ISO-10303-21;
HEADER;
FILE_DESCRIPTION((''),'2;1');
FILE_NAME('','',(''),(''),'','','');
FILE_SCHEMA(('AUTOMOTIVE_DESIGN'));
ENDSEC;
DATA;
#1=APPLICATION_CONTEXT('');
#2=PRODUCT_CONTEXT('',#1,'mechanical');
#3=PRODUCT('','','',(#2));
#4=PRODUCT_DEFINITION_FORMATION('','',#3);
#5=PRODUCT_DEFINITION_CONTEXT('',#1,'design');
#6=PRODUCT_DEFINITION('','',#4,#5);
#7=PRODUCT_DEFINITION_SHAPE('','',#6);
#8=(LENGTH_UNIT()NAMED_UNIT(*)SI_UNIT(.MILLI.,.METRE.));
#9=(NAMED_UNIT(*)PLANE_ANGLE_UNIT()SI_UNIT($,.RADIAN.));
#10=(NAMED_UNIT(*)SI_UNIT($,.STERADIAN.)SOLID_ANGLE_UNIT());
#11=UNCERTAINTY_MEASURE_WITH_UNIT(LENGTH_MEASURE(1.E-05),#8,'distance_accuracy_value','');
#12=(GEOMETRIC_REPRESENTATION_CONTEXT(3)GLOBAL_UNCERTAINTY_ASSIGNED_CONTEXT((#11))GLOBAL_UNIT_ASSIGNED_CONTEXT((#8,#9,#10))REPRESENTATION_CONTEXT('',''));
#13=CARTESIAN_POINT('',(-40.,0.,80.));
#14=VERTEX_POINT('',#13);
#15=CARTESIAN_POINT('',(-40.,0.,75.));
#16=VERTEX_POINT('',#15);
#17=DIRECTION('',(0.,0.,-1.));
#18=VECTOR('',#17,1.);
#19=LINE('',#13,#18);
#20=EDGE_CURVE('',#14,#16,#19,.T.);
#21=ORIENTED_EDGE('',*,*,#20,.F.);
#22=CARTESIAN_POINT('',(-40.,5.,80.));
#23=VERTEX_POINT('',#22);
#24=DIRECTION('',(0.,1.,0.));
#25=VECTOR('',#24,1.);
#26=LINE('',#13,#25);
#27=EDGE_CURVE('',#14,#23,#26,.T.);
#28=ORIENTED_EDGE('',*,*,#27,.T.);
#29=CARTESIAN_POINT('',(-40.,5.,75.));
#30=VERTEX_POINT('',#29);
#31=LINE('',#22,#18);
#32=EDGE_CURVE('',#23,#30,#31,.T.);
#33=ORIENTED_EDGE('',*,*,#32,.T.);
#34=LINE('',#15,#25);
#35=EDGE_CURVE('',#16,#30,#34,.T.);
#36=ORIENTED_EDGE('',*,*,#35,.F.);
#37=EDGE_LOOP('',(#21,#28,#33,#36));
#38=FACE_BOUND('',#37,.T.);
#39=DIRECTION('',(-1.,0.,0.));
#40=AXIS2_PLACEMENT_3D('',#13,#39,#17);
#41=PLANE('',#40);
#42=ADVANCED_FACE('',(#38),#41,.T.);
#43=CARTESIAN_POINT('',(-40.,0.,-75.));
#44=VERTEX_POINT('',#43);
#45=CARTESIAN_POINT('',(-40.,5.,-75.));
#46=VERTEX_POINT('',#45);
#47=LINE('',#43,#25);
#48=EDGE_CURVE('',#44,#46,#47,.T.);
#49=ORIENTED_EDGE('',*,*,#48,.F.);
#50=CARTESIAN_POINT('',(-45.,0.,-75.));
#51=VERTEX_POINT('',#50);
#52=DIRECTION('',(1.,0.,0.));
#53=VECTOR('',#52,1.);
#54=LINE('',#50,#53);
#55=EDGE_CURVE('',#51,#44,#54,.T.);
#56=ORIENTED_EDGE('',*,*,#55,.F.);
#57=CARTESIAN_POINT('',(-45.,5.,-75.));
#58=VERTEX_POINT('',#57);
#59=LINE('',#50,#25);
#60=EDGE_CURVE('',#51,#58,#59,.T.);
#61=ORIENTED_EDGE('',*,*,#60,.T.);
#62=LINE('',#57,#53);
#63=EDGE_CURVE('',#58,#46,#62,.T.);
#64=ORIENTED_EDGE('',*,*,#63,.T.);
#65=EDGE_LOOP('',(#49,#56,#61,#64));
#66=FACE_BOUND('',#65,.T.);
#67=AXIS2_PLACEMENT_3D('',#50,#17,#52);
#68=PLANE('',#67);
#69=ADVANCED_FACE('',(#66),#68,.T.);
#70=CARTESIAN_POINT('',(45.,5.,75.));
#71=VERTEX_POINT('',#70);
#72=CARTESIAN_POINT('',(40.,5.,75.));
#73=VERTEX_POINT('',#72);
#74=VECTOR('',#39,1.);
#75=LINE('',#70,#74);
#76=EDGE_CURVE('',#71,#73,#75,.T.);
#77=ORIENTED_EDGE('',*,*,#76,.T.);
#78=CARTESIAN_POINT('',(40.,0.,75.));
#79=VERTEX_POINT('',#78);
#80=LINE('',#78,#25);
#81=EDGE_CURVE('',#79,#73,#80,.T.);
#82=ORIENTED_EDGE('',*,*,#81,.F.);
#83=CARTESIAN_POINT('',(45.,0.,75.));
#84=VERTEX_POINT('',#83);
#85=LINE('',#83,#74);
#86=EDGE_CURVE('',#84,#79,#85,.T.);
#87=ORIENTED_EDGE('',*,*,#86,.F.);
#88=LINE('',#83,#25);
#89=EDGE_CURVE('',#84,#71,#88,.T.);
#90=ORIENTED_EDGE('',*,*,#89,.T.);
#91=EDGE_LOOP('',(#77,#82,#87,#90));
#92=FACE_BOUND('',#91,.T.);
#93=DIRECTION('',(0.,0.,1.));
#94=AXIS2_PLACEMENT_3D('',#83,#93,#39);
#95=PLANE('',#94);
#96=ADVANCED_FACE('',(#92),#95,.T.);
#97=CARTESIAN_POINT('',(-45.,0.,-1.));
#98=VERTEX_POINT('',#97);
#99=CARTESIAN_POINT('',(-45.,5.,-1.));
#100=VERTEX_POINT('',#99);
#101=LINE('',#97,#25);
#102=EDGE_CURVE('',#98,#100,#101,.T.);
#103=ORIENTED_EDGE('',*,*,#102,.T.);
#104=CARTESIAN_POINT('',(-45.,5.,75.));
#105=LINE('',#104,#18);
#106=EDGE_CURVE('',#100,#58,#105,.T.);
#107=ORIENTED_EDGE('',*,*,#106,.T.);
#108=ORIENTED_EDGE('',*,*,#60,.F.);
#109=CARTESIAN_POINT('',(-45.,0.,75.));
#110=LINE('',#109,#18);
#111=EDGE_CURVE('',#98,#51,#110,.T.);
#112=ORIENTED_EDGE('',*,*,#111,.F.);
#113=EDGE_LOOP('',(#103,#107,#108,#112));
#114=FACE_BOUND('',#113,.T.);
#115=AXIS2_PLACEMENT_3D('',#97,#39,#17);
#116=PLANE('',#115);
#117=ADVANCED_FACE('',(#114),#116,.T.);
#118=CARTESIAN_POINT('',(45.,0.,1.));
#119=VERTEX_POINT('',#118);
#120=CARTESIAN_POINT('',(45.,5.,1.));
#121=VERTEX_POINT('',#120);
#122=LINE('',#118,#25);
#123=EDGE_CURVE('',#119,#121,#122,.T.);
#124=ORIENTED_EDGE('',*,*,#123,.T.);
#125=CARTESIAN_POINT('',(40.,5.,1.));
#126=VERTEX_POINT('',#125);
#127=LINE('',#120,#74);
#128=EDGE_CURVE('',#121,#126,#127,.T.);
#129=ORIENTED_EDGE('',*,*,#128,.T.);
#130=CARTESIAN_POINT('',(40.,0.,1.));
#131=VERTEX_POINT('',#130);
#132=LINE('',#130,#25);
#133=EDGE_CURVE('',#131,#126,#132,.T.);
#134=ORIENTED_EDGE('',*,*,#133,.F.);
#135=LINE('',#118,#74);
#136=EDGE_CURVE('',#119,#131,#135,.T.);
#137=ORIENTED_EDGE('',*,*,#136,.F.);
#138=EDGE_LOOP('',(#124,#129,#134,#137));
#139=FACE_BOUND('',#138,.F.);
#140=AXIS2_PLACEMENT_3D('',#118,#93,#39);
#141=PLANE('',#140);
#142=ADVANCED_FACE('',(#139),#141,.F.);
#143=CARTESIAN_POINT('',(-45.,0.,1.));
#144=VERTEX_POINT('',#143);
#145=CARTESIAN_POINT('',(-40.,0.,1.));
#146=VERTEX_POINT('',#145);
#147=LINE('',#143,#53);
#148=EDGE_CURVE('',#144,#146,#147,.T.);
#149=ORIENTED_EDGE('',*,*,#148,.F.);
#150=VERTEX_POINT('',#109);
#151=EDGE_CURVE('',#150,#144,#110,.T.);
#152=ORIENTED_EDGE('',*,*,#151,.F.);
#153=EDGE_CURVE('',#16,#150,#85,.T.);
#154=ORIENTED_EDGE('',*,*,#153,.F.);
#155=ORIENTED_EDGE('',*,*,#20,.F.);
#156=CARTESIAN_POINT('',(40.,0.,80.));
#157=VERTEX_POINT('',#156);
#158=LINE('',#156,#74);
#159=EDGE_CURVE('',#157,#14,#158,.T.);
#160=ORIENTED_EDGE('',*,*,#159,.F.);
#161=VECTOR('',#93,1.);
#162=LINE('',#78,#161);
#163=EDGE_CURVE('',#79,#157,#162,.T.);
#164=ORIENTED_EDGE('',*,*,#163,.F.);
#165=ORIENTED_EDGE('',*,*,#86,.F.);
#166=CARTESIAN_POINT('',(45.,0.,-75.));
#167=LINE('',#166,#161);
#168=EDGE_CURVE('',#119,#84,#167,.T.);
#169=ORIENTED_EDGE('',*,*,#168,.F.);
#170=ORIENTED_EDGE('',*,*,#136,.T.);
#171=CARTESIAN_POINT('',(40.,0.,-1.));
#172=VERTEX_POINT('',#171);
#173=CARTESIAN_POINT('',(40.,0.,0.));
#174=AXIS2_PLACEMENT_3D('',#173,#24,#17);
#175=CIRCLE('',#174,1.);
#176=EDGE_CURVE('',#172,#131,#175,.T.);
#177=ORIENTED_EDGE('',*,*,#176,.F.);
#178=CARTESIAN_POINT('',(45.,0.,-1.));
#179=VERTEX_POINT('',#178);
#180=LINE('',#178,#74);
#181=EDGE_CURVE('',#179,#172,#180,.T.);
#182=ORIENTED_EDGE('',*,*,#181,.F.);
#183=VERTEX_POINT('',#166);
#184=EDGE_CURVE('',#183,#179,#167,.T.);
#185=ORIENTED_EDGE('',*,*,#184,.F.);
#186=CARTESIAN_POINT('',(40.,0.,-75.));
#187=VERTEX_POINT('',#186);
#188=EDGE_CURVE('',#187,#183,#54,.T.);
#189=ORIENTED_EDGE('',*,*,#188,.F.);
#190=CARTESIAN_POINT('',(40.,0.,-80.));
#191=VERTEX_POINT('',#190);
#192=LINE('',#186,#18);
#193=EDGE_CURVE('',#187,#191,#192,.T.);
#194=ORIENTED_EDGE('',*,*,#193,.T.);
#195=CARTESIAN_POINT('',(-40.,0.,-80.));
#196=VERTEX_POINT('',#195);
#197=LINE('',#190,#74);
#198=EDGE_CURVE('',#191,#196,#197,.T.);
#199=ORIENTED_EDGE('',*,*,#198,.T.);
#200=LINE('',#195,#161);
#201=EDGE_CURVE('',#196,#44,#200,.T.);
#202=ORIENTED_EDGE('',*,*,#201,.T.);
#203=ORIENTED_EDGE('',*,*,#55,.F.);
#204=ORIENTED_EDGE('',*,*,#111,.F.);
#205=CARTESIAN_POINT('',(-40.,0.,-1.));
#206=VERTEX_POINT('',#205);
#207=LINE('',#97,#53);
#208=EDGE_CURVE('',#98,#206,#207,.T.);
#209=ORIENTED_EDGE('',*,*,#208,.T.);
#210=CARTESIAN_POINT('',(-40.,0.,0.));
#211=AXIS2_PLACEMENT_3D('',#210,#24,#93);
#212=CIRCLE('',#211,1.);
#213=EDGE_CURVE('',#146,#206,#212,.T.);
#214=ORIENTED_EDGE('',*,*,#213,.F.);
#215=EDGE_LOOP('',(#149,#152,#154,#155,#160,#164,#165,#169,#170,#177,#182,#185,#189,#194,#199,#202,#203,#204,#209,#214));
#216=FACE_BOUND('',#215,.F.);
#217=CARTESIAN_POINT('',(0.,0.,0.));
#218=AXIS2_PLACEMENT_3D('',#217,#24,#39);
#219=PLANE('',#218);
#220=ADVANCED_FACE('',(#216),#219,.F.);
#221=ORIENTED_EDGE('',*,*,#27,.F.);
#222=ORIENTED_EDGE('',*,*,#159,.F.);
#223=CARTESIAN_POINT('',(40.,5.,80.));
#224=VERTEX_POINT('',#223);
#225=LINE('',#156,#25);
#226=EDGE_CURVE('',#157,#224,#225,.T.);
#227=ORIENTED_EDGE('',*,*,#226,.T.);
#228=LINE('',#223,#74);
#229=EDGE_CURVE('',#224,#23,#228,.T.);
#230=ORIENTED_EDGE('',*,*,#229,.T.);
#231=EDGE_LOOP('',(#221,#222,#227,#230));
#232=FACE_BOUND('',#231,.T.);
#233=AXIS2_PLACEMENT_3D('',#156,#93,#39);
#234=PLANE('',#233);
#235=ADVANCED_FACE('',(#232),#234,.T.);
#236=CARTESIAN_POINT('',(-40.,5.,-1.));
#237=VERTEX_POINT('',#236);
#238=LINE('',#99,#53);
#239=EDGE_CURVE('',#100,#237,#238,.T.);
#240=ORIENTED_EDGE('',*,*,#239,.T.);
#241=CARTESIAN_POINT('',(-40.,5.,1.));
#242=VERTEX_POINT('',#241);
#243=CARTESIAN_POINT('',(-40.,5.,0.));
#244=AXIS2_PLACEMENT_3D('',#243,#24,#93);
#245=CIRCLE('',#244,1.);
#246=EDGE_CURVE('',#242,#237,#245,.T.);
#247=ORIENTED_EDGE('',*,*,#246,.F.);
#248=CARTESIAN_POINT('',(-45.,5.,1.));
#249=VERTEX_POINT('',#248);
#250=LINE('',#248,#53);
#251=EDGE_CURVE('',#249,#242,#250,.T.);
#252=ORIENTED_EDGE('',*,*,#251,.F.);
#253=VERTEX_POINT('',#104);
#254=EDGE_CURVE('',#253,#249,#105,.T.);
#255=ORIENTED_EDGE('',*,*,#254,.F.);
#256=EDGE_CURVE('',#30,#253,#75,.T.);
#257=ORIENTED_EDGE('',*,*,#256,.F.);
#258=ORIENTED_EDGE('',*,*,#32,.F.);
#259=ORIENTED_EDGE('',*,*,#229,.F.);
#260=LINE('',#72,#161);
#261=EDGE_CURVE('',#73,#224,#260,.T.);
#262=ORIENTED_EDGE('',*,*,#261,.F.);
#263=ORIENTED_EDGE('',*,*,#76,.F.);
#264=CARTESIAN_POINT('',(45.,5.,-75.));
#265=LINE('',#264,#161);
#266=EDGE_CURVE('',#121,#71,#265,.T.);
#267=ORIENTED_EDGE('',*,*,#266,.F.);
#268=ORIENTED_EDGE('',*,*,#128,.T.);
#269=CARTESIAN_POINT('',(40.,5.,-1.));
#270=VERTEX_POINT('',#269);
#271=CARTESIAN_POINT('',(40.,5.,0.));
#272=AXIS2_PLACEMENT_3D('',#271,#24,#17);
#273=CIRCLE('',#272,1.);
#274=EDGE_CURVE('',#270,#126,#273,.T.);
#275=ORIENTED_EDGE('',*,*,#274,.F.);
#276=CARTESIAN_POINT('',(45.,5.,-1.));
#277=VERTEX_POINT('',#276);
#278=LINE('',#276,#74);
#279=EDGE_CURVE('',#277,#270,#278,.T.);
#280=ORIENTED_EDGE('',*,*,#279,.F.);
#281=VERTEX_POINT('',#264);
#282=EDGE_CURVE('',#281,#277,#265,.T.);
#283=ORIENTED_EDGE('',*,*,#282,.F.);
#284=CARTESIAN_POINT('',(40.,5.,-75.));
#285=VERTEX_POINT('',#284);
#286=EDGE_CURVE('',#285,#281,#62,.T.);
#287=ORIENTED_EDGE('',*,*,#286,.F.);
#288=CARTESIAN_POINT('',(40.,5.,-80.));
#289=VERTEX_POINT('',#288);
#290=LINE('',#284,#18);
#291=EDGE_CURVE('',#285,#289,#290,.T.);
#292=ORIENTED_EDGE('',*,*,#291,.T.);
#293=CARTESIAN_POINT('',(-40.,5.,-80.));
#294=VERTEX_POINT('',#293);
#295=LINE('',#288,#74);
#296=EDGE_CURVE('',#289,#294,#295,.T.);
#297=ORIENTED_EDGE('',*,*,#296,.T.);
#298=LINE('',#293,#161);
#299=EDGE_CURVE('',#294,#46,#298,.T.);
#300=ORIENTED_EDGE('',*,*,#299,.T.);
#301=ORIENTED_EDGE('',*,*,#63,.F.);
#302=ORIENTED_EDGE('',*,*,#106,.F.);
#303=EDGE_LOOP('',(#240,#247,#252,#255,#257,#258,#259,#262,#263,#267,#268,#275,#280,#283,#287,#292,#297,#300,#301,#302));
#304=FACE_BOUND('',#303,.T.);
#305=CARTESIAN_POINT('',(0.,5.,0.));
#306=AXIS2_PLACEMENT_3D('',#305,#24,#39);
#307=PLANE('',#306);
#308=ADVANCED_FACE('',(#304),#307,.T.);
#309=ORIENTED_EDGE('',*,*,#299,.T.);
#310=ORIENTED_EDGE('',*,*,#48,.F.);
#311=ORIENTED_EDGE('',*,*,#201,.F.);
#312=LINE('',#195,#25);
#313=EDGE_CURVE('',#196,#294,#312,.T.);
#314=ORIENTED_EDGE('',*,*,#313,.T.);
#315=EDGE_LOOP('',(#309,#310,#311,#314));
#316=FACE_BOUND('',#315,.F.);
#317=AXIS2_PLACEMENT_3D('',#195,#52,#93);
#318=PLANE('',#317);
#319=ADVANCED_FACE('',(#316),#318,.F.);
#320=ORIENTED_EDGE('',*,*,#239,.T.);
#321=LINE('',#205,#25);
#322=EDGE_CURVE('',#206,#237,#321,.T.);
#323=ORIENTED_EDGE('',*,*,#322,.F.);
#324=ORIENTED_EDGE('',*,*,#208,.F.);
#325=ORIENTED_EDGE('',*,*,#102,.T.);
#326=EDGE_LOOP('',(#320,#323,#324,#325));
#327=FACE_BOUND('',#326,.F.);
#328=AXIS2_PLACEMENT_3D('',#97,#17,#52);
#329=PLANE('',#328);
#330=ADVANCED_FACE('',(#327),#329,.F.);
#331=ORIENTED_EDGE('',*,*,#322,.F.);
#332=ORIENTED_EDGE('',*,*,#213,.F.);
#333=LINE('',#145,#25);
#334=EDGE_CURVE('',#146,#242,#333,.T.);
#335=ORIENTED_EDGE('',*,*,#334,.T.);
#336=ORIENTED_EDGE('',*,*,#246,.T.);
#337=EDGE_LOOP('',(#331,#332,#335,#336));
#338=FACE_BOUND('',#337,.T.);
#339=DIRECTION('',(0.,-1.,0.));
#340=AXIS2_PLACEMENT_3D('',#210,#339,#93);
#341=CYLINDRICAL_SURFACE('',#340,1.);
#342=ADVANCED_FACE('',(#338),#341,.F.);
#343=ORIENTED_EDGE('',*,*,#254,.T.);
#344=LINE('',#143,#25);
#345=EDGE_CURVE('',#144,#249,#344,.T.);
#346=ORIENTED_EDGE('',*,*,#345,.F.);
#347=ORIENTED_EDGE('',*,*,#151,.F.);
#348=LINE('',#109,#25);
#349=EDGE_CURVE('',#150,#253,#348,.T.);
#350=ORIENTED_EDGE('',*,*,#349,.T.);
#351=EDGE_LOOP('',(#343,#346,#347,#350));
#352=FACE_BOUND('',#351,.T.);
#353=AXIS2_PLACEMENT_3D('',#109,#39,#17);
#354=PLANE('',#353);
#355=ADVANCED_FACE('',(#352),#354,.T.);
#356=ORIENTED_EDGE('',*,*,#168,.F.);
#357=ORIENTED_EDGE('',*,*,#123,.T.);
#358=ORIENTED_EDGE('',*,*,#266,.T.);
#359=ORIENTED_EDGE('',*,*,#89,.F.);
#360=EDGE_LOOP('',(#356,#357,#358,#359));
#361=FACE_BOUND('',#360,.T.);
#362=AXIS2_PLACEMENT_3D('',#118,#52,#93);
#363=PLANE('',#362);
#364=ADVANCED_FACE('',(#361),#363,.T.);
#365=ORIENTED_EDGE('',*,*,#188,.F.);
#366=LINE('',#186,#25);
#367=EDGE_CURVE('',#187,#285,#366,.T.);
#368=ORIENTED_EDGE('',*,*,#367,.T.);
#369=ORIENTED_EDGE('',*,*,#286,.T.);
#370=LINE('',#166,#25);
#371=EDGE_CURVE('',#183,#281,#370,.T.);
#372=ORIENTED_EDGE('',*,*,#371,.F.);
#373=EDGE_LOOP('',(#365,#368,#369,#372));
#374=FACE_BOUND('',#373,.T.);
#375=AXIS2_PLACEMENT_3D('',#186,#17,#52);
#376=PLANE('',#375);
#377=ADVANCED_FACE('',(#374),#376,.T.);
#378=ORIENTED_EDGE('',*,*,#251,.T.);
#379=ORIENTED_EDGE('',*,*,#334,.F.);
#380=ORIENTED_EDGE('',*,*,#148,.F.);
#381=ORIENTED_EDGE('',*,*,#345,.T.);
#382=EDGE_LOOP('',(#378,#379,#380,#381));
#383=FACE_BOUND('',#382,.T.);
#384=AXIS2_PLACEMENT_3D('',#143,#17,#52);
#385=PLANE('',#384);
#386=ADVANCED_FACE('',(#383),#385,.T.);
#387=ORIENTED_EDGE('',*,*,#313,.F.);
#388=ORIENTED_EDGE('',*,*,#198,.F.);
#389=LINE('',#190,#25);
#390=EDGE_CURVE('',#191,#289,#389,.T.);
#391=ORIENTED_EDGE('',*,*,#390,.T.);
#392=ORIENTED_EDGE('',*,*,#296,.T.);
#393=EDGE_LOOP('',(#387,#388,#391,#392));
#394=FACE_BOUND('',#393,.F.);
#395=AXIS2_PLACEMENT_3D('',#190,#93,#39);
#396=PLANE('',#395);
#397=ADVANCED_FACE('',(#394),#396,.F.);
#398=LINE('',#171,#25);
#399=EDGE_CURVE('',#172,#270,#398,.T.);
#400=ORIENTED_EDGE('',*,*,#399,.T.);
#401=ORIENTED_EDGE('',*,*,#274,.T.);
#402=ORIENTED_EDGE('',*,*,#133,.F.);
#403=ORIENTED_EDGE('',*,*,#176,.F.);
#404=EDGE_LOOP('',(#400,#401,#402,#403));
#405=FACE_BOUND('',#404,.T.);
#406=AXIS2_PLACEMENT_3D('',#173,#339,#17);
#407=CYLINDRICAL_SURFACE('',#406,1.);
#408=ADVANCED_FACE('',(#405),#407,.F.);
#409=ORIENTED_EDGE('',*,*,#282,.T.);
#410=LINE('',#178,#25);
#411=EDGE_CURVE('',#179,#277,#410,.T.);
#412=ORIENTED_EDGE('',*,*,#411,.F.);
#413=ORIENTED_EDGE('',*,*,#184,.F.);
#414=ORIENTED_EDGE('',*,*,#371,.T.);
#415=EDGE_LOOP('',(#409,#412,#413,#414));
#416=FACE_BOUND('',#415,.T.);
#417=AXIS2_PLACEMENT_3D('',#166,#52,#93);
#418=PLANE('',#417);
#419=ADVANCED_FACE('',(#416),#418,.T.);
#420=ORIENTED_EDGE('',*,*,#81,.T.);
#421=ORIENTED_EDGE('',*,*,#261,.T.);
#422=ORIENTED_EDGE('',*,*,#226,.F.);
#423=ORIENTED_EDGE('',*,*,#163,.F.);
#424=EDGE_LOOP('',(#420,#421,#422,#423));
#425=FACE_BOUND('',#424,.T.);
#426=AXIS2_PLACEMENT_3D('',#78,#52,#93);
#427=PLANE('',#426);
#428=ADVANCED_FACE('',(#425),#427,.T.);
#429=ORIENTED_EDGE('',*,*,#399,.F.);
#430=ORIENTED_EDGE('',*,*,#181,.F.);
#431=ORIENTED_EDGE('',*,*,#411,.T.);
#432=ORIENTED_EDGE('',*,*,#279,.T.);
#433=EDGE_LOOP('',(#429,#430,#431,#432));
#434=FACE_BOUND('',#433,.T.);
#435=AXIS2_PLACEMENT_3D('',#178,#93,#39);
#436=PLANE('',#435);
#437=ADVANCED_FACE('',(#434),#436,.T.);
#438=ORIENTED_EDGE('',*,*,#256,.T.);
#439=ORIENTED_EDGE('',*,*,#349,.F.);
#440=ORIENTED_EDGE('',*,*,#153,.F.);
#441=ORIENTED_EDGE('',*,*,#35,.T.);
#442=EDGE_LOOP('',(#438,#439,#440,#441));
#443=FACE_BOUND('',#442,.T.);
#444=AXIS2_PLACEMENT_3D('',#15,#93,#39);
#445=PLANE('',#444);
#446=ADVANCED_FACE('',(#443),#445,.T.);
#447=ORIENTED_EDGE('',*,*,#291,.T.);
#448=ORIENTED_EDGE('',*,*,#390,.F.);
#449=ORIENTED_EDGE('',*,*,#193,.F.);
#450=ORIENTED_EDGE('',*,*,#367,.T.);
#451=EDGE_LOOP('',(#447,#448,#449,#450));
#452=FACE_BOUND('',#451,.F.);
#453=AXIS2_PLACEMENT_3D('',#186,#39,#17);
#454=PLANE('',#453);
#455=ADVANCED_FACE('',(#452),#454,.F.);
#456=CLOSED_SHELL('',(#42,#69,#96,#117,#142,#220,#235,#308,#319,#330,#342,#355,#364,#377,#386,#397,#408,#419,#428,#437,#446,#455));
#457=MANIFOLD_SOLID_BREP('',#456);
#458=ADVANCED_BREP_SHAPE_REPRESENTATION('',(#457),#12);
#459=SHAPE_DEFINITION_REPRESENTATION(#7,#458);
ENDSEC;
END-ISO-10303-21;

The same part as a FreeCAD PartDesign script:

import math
import FreeCAD as App
import Part
import Sketcher

V = App.Vector
Q = App.Units.Quantity

doc = App.newDocument("Part")
body = doc.addObject("PartDesign::Body", "Body")

# Sketch on XZ plane
sketch1 = doc.addObject("Sketcher::SketchObject", "Sketch")
body.addObject(sketch1)
sketch1.AttachmentSupport = (doc.XZ_Plane, [""])
sketch1.MapMode = "FlatFace"
sketch1.addGeometry(Part.LineSegment(V(-40, -75, 0), V(-45, -75, 0)), False)
sketch1.addGeometry(Part.LineSegment(V(-45, -75, 0), V(-45, -1, 0)), False)
sketch1.addGeometry(Part.LineSegment(V(-45, -1, 0), V(-40, -1, 0)), False)
sketch1.addGeometry(Part.ArcOfCircle(Part.Circle(V(-40, 0, 0), V(0, 0, 1), 1), math.radians(-90), math.radians(90)), False)
sketch1.addGeometry(Part.LineSegment(V(-40, 1, 0), V(-45, 1, 0)), False)
sketch1.addGeometry(Part.LineSegment(V(-45, 1, 0), V(-45, 75, 0)), False)
sketch1.addGeometry(Part.LineSegment(V(-45, 75, 0), V(-40, 75, 0)), False)
sketch1.addGeometry(Part.LineSegment(V(-40, 75, 0), V(-40, 80, 0)), False)
sketch1.addGeometry(Part.LineSegment(V(-40, 80, 0), V(40, 80, 0)), False)
sketch1.addGeometry(Part.LineSegment(V(40, 80, 0), V(40, 75, 0)), False)
sketch1.addGeometry(Part.LineSegment(V(40, 75, 0), V(45, 75, 0)), False)
sketch1.addGeometry(Part.LineSegment(V(45, 75, 0), V(45, 1, 0)), False)
sketch1.addGeometry(Part.LineSegment(V(45, 1, 0), V(40, 1, 0)), False)
sketch1.addGeometry(Part.ArcOfCircle(Part.Circle(V(40, 0, 0), V(0, 0, 1), 1), math.radians(90), math.radians(270)), False)
sketch1.addGeometry(Part.LineSegment(V(40, -1, 0), V(45, -1, 0)), False)
sketch1.addGeometry(Part.LineSegment(V(45, -1, 0), V(45, -75, 0)), False)
sketch1.addGeometry(Part.LineSegment(V(45, -75, 0), V(40, -75, 0)), False)
sketch1.addGeometry(Part.LineSegment(V(40, -75, 0), V(40, -80, 0)), False)
sketch1.addGeometry(Part.LineSegment(V(40, -80, 0), V(-40, -80, 0)), False)
sketch1.addGeometry(Part.LineSegment(V(-40, -80, 0), V(-40, -75, 0)), False)
sketch1.addConstraint(Sketcher.Constraint("Coincident", 0, 2, 1, 1))
sketch1.addConstraint(Sketcher.Constraint("Coincident", 1, 2, 2, 1))
sketch1.addConstraint(Sketcher.Constraint("Tangent", 2, 2, 3, 1))
sketch1.addConstraint(Sketcher.Constraint("Tangent", 3, 2, 4, 1))
sketch1.addConstraint(Sketcher.Constraint("Coincident", 4, 2, 5, 1))
sketch1.addConstraint(Sketcher.Constraint("Coincident", 5, 2, 6, 1))
sketch1.addConstraint(Sketcher.Constraint("Coincident", 6, 2, 7, 1))
sketch1.addConstraint(Sketcher.Constraint("Coincident", 7, 2, 8, 1))
sketch1.addConstraint(Sketcher.Constraint("Coincident", 8, 2, 9, 1))
sketch1.addConstraint(Sketcher.Constraint("Coincident", 9, 2, 10, 1))
sketch1.addConstraint(Sketcher.Constraint("Coincident", 10, 2, 11, 1))
sketch1.addConstraint(Sketcher.Constraint("Coincident", 11, 2, 12, 1))
sketch1.addConstraint(Sketcher.Constraint("Tangent", 12, 2, 13, 1))
sketch1.addConstraint(Sketcher.Constraint("Tangent", 13, 2, 14, 1))
sketch1.addConstraint(Sketcher.Constraint("Coincident", 14, 2, 15, 1))
sketch1.addConstraint(Sketcher.Constraint("Coincident", 15, 2, 16, 1))
sketch1.addConstraint(Sketcher.Constraint("Coincident", 16, 2, 17, 1))
sketch1.addConstraint(Sketcher.Constraint("Coincident", 17, 2, 18, 1))
sketch1.addConstraint(Sketcher.Constraint("Coincident", 18, 2, 19, 1))
sketch1.addConstraint(Sketcher.Constraint("Coincident", 19, 2, 0, 1))
sketch1.addConstraint(Sketcher.Constraint("Horizontal", 0))
sketch1.addConstraint(Sketcher.Constraint("Vertical", 1))
sketch1.addConstraint(Sketcher.Constraint("Horizontal", 2))
sketch1.addConstraint(Sketcher.Constraint("Horizontal", 4))
sketch1.addConstraint(Sketcher.Constraint("Vertical", 5))
sketch1.addConstraint(Sketcher.Constraint("Horizontal", 6))
sketch1.addConstraint(Sketcher.Constraint("Vertical", 7))
sketch1.addConstraint(Sketcher.Constraint("Horizontal", 8))
sketch1.addConstraint(Sketcher.Constraint("Vertical", 9))
sketch1.addConstraint(Sketcher.Constraint("Horizontal", 10))
sketch1.addConstraint(Sketcher.Constraint("Vertical", 11))
sketch1.addConstraint(Sketcher.Constraint("Horizontal", 12))
sketch1.addConstraint(Sketcher.Constraint("Horizontal", 14))
sketch1.addConstraint(Sketcher.Constraint("Vertical", 15))
sketch1.addConstraint(Sketcher.Constraint("Horizontal", 16))
sketch1.addConstraint(Sketcher.Constraint("Vertical", 17))
sketch1.addConstraint(Sketcher.Constraint("Horizontal", 18))
sketch1.addConstraint(Sketcher.Constraint("Vertical", 19))
sketch1.addConstraint(Sketcher.Constraint("Equal", 3, 13))
sketch1.addConstraint(Sketcher.Constraint("Symmetric", 3, 3, 13, 3, -1, 1))
sketch1.addConstraint(Sketcher.Constraint("Symmetric", 0, 2, 10, 2, -1, 1))
sketch1.addConstraint(Sketcher.Constraint("Symmetric", 5, 2, 15, 2, -1, 1))
sketch1.addConstraint(Sketcher.Constraint("Symmetric", 7, 2, 17, 2, -1, 1))
sketch1.addConstraint(Sketcher.Constraint("Symmetric", 6, 2, 9, 2, -2))
sketch1.addConstraint(Sketcher.Constraint("Symmetric", 4, 2, 11, 2, -2))
sketch1.addConstraint(Sketcher.Constraint("Vertical", 3, 2, 6, 2))
sketch1.addConstraint(Sketcher.Constraint("Vertical", 7, 2, 18, 2))
sketch1.addConstraint(Sketcher.Constraint("Equal", 16, 7))
sketch1.addConstraint(Sketcher.Constraint("Radius", 3, Q("1 mm")))
sketch1.addConstraint(Sketcher.Constraint("DistanceX", 0, 2, 0, 1, Q("5 mm")))
sketch1.addConstraint(Sketcher.Constraint("DistanceX", 8, 1, 8, 2, Q("80 mm")))
sketch1.addConstraint(Sketcher.Constraint("DistanceY", -1, 1, 7, 2, Q("80 mm")))
pad1 = doc.addObject("PartDesign::Pad", "Pad")
body.addObject(pad1)
pad1.Profile = sketch1
pad1.Length = 5
pad1.Reversed = True

doc.recompute()
